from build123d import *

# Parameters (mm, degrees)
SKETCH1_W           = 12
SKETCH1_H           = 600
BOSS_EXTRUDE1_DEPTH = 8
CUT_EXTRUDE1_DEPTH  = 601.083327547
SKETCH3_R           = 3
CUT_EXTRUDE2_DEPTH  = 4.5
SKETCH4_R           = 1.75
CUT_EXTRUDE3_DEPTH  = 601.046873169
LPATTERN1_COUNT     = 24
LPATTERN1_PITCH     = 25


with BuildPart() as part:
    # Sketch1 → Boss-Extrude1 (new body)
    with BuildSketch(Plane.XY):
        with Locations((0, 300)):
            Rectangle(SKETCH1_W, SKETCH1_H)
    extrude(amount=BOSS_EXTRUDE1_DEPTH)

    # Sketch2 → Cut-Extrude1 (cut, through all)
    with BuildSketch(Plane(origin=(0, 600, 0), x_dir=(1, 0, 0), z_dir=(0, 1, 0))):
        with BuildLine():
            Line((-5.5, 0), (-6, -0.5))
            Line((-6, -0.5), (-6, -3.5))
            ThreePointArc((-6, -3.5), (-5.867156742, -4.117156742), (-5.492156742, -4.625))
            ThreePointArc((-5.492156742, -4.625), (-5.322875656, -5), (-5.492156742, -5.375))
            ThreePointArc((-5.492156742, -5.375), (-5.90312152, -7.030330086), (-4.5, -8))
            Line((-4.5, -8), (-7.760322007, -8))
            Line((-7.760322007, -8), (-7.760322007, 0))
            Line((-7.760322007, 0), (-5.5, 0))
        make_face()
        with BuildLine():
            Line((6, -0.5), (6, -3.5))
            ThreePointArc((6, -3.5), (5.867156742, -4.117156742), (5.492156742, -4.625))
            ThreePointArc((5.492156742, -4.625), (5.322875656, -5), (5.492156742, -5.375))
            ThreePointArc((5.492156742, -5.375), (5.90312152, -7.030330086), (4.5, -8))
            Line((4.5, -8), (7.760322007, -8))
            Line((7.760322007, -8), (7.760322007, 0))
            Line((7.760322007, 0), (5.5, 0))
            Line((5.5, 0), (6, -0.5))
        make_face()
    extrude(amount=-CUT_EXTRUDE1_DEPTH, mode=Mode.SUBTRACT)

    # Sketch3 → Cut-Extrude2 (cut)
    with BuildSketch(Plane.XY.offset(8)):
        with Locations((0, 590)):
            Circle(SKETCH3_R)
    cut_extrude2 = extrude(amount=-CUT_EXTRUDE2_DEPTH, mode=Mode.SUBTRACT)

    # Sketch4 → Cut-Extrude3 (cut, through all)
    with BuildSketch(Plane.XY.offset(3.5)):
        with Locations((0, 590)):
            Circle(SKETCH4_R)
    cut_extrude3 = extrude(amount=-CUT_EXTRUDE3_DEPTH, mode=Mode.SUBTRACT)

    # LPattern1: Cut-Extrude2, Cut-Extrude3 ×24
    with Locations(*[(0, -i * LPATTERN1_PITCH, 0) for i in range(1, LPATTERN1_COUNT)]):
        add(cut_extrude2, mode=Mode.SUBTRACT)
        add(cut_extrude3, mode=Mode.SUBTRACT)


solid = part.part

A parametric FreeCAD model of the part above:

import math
import FreeCAD as App
import Part
import Sketcher

V = App.Vector


def add_polygon(sketch, points):
    """Adds a closed chain of lines whose ends are joined by coincident constraints."""
    first, n = sketch.GeometryCount, len(points)
    for a, b in zip(points, points[1:] + points[:1]):
        sketch.addGeometry(Part.LineSegment(App.Vector(*a, 0), App.Vector(*b, 0)), False)
    for i in range(n):
        sketch.addConstraint(Sketcher.Constraint("Coincident", first + i, 2, first + (i + 1) % n, 1))

doc = App.newDocument("Part")
body = doc.addObject("PartDesign::Body", "Body")

sketch1 = body.newObject("Sketcher::SketchObject", "Sketch")
sketch1.AttachmentSupport = (doc.getObject("XY_Plane"), [""])
sketch1.MapMode = "FlatFace"
add_polygon(sketch1, [(-6, 600), (-6, 0), (6, 0), (6, 600)])
sketch1.addConstraint([
    Sketcher.Constraint("Vertical", 0),
    Sketcher.Constraint("Horizontal", 1),
    Sketcher.Constraint("Vertical", 2),
    Sketcher.Constraint("Horizontal", 3),
    Sketcher.Constraint("Symmetric", 0, 2, 1, 2, -1, 1),
    Sketcher.Constraint("DistanceX", 1, 1, 1, 2, 12.0),
    Sketcher.Constraint("DistanceY", 0, 2, 0, 1, 600.0),
])
pad1 = body.newObject("PartDesign::Pad", "Pad")
pad1.Profile = sketch1
pad1.Length = 8

sketch2 = body.newObject("Sketcher::SketchObject", "Sketch001")
sketch2.AttachmentSupport = (doc.getObject("XZ_Plane"), [""])
sketch2.MapMode = "FlatFace"
sketch2.AttachmentOffset = App.Placement(V(0, 0, -600), App.Rotation())
sketch2.addGeometry([
    Part.LineSegment(V(-6, 0.5, 0), V(-5.5, 0, 0)),
    Part.LineSegment(V(-5.5, 0, 0), V(-7.8, 0, 0)),
    Part.LineSegment(V(-7.8, 0, 0), V(-7.8, 8, 0)),
    Part.LineSegment(V(-7.8, 8, 0), V(-4.5, 8, 0)),
    Part.ArcOfCircle(Part.Circle(V(-4.5, 6.5, 0), V(0, 0, 1), 1.5), math.radians(90), math.radians(229)),
    Part.ArcOfCircle(Part.Circle(V(-5.8, 5, 0), V(0, 0, 1), 0.5), math.radians(-49), math.radians(49)),
    Part.ArcOfCircle(Part.Circle(V(-4.5, 3.5, 0), V(0, 0, 1), 1.5), math.radians(131), math.radians(180)),
    Part.LineSegment(V(-6, 3.5, 0), V(-6, 0.5, 0)),
    Part.LineSegment(V(6, 0.5, 0), V(6, 3.5, 0)),
    Part.ArcOfCircle(Part.Circle(V(4.5, 3.5, 0), V(0, 0, 1), 1.5), math.radians(0), math.radians(49)),
    Part.ArcOfCircle(Part.Circle(V(5.8, 5, 0), V(0, 0, 1), 0.5), math.radians(131), math.radians(229)),
    Part.ArcOfCircle(Part.Circle(V(4.5, 6.5, 0), V(0, 0, 1), 1.5), math.radians(-49), math.radians(90)),
    Part.LineSegment(V(4.5, 8, 0), V(7.8, 8, 0)),
    Part.LineSegment(V(7.8, 8, 0), V(7.8, 0, 0)),
    Part.LineSegment(V(7.8, 0, 0), V(5.5, 0, 0)),
    Part.LineSegment(V(5.5, 0, 0), V(6, 0.5, 0)),
], False)
sketch2.addConstraint([
    Sketcher.Constraint("Coincident", 0, 2, 1, 1),
    Sketcher.Constraint("Coincident", 1, 2, 2, 1),
    Sketcher.Constraint("Coincident", 2, 2, 3, 1),
    Sketcher.Constraint("Tangent", 3, 2, 4, 1),
    Sketcher.Constraint("Tangent", 4, 2, 5, 2),
    Sketcher.Constraint("Tangent", 5, 1, 6, 1),
    Sketcher.Constraint("Tangent", 6, 2, 7, 1),
    Sketcher.Constraint("Coincident", 7, 2, 0, 1),
    Sketcher.Constraint("Tangent", 8, 2, 9, 1),
    Sketcher.Constraint("Tangent", 9, 2, 10, 2),
    Sketcher.Constraint("Tangent", 10, 1, 11, 1),
    Sketcher.Constraint("Tangent", 11, 2, 12, 1),
    Sketcher.Constraint("Coincident", 12, 2, 13, 1),
    Sketcher.Constraint("Coincident", 13, 2, 14, 1),
    Sketcher.Constraint("Coincident", 14, 2, 15, 1),
    Sketcher.Constraint("Coincident", 15, 2, 8, 1),
    Sketcher.Constraint("Horizontal", 1),
    Sketcher.Constraint("Vertical", 2),
    Sketcher.Constraint("Horizontal", 3),
    Sketcher.Constraint("Vertical", 7),
    Sketcher.Constraint("Vertical", 8),
    Sketcher.Constraint("Horizontal", 12),
    Sketcher.Constraint("Vertical", 13),
    Sketcher.Constraint("Horizontal", 14),
    Sketcher.Constraint("Equal", 4, 6),
    Sketcher.Constraint("Equal", 6, 9),
    Sketcher.Constraint("Equal", 5, 10),
    Sketcher.Constraint("Equal", 9, 11),
    Sketcher.Constraint("Symmetric", 1, 2, 13, 2, -1, 1),
    Sketcher.Constraint("Symmetric", 6, 3, 9, 3, -2),
    Sketcher.Constraint("Symmetric", 4, 3, 11, 3, -2),
    Sketcher.Constraint("Symmetric", 0, 2, 14, 2, -2),
    Sketcher.Constraint("Perpendicular", 0, 15),
    Sketcher.Constraint("Horizontal", 7, 2, 15, 2),
    Sketcher.Constraint("Vertical", 4, 3, 6, 3),
    Sketcher.Constraint("Radius", 4, 1.5),
    Sketcher.Constraint("Radius", 5, 0.5),
    Sketcher.Constraint("DistanceY", 2, 1, 2, 2, 8.0),
    Sketcher.Constraint("DistanceY", 7, 2, 7, 1, 3.0),
    Sketcher.Constraint("DistanceY", -1, 1, 5, 3, 5.0),
    Sketcher.Constraint("DistanceX", 6, 2, -1, 1, 6.0),
    Sketcher.Constraint("DistanceX", 1, 2, 1, 1, 2.260322),
])
pocket1 = body.newObject("PartDesign::Pocket", "Pocket")
pocket1.Profile = sketch2
pocket1.Type = "ThroughAll"
pocket1.Reversed = True

sketch3 = body.newObject("Sketcher::SketchObject", "Sketch002")
sketch3.AttachmentSupport = (doc.getObject("XY_Plane"), [""])
sketch3.MapMode = "FlatFace"
sketch3.AttachmentOffset = App.Placement(V(0, 0, 8), App.Rotation())
sketch3.addGeometry(Part.Circle(V(0, 590, 0), V(0, 0, 1), 3), False)
sketch3.addConstraint([
    Sketcher.Constraint("PointOnObject", 0, 3, -2),
    Sketcher.Constraint("Diameter", 0, 6.0),
    Sketcher.Constraint("DistanceY", -1, 1, 0, 3, 590.0),
])
pocket2 = body.newObject("PartDesign::Pocket", "Pocket001")
pocket2.Profile = sketch3
pocket2.Length = 4.5

sketch4 = body.newObject("Sketcher::SketchObject", "Sketch003")
sketch4.AttachmentSupport = (doc.getObject("XY_Plane"), [""])
sketch4.MapMode = "FlatFace"
sketch4.AttachmentOffset = App.Placement(V(0, 0, 3.5), App.Rotation())
sketch4.addGeometry(Part.Circle(V(0, 590, 0), V(0, 0, 1), 1.8), False)
sketch4.addConstraint([
    Sketcher.Constraint("PointOnObject", 0, 3, -2),
    Sketcher.Constraint("Diameter", 0, 3.5),
    Sketcher.Constraint("DistanceY", -1, 1, 0, 3, 590.0),
])
pocket3 = body.newObject("PartDesign::Pocket", "Pocket002")
pocket3.Profile = sketch4
pocket3.Type = "ThroughAll"
doc.recompute()

linearpattern = body.newObject("PartDesign::LinearPattern", "LinearPattern")
linearpattern.Originals = [pocket2, pocket3]
linearpattern.Direction = (doc.getObject("Y_Axis"), [""])
linearpattern.Mode = "offset"
linearpattern.Offset = 25
linearpattern.Occurrences = 24
linearpattern.Reversed = True
body.Tip = linearpattern

doc.recompute()
